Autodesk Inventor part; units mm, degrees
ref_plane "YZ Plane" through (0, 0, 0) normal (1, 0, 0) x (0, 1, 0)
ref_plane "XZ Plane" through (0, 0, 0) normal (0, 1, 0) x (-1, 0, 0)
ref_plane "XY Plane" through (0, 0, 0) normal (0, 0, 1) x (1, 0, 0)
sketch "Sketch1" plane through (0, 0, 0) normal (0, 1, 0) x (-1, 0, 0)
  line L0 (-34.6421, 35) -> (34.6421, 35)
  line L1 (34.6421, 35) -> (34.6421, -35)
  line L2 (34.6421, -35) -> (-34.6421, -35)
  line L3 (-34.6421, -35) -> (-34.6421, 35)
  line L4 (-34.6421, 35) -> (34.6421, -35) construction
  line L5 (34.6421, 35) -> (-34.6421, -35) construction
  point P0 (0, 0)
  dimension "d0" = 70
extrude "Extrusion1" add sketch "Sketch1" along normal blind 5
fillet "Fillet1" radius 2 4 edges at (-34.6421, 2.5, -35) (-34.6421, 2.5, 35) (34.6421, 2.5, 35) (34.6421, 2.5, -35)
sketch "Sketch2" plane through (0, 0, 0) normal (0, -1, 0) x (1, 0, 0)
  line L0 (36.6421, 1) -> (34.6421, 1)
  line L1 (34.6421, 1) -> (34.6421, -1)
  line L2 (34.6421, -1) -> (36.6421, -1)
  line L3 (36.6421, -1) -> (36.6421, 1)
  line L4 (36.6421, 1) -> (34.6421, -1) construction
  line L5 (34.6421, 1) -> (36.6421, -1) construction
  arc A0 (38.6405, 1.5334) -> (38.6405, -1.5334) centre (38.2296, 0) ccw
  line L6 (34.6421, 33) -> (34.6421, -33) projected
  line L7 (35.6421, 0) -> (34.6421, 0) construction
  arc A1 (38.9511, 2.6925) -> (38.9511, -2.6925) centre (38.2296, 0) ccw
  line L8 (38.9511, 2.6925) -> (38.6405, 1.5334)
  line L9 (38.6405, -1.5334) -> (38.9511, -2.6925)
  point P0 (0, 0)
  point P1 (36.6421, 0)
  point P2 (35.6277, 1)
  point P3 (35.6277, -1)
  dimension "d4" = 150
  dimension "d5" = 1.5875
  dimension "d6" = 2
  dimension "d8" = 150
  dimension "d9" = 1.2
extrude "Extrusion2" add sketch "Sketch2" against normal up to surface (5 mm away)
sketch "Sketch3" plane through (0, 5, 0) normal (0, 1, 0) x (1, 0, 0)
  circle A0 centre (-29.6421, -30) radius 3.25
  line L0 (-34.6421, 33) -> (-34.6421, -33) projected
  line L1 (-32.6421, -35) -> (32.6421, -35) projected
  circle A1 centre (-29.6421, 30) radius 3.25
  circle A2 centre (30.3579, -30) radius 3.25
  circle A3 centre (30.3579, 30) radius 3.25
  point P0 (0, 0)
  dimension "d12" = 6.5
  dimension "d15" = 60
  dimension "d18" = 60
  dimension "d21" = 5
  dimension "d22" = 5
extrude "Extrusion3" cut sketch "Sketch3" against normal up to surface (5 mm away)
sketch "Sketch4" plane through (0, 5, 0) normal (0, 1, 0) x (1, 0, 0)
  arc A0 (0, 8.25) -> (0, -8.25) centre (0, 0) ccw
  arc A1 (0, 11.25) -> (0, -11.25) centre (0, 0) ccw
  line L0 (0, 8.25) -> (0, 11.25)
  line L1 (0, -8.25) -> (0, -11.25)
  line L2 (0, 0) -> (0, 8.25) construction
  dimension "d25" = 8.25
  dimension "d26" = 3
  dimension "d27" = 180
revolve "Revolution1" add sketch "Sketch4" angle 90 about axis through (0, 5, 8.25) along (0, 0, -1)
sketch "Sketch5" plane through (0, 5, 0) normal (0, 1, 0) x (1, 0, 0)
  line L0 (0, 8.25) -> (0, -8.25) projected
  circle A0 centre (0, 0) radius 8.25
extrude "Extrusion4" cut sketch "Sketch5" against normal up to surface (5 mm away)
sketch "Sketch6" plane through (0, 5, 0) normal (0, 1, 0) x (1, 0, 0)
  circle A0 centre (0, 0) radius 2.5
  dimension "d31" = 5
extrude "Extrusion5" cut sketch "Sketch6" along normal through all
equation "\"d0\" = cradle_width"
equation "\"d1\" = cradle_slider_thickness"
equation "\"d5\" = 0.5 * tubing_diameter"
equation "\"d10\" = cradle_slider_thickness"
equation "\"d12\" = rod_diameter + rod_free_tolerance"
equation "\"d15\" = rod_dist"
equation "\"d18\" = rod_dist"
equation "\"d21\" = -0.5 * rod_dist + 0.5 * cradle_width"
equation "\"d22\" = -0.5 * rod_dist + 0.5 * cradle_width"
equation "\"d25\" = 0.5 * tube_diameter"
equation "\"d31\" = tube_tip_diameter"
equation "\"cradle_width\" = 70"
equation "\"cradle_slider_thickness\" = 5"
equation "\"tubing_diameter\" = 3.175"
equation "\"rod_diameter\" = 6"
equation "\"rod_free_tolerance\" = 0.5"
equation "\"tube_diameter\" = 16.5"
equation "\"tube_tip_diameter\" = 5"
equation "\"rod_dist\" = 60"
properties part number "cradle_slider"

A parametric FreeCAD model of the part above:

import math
import FreeCAD as App
import Part
import Sketcher
from FreeCAD import Vector
Q = App.Units.Quantity


def edges_at(feature, points):
    """Names of the edges that pass closest to the given points."""
    edges = feature.Shape.Edges
    near = lambda p: min(range(len(edges)), key=lambda i: edges[i].distToShape(Part.Vertex(*p))[0])
    return sorted({f"Edge{near(p) + 1}" for p in points})

doc = App.newDocument("Part")
body = doc.addObject("PartDesign::Body", "Body")

# Sketch on XZ plane
sketch1 = doc.addObject("Sketcher::SketchObject", "Sketch")
body.addObject(sketch1)
sketch1.AttachmentSupport = (doc.XZ_Plane, [""])
sketch1.MapMode = "FlatFace"
sketch1.addGeometry([
    Part.LineSegment(Vector(-35, 35, 0), Vector(35, 35, 0)),
    Part.LineSegment(Vector(35, 35, 0), Vector(35, -35, 0)),
    Part.LineSegment(Vector(35, -35, 0), Vector(-35, -35, 0)),
    Part.LineSegment(Vector(-35, -35, 0), Vector(-35, 35, 0)),
], False)
sketch1.addConstraint([
    Sketcher.Constraint("Coincident", 0, 2, 1, 1),
    Sketcher.Constraint("Coincident", 1, 2, 2, 1),
    Sketcher.Constraint("Coincident", 2, 2, 3, 1),
    Sketcher.Constraint("Coincident", 3, 2, 0, 1),
    Sketcher.Constraint("Horizontal", 0),
    Sketcher.Constraint("Vertical", 1),
    Sketcher.Constraint("Horizontal", 2),
    Sketcher.Constraint("Vertical", 3),
    Sketcher.Constraint("Symmetric", 0, 2, 2, 2, -1, 1),
    Sketcher.Constraint("DistanceY", 1, 2, 1, 1, Q("70 mm")),
    Sketcher.Constraint("DistanceX", 0, 1, 0, 2, Q("69.2842 mm")),
])
pad1 = doc.addObject("PartDesign::Pad", "Pad")
body.addObject(pad1)
pad1.Profile = sketch1
pad1.Length = 5
pad1.Reversed = True
doc.recompute()

fillet = doc.addObject("PartDesign::Fillet", "Fillet")
body.addObject(fillet)
fillet.Base = (pad1, edges_at(pad1, [
    (-34.642, 2.5, -35),
    (-34.642, 2.5, 35),
    (34.642, 2.5, 35),
    (34.642, 2.5, -35),
]))
fillet.Radius = 2

# Sketch on XZ plane
sketch2 = doc.addObject("Sketcher::SketchObject", "Sketch001")
body.addObject(sketch2)
sketch2.AttachmentSupport = (doc.XZ_Plane, [""])
sketch2.MapMode = "FlatFace"
sketch2.addGeometry([
    Part.LineSegment(Vector(38.6, 1.5, 0), Vector(39, 2.7, 0)),  # 0
    Part.ArcOfCircle(Part.Circle(Vector(38.2, 0, 0), Vector(0, 0, 1), 2.8), math.radians(75), math.radians(159)),  # 1
    Part.LineSegment(Vector(35.6, 1, 0), Vector(34.6, 1, 0)),  # 2
    Part.LineSegment(Vector(34.6, 1, 0), Vector(34.6, -1, 0)),  # 3
    Part.LineSegment(Vector(34.6, -1, 0), Vector(35.6, -1, 0)),  # 4
    Part.ArcOfCircle(Part.Circle(Vector(38.2, 0, 0), Vector(0, 0, 1), 2.8), math.radians(-159), math.radians(-75)),  # 5
    Part.LineSegment(Vector(39, -2.7, 0), Vector(38.6, -1.5, 0)),  # 6
    Part.ArcOfCircle(Part.Circle(Vector(38.2, 0, 0), Vector(0, 0, 1), 1.6), math.radians(75), math.radians(285)),  # 7
], False)
sketch2.addConstraint([
    Sketcher.Constraint("Coincident", 0, 2, 1, 1),
    Sketcher.Constraint("Coincident", 1, 2, 2, 1),
    Sketcher.Constraint("Coincident", 2, 2, 3, 1),
    Sketcher.Constraint("Coincident", 3, 2, 4, 1),
    Sketcher.Constraint("Coincident", 4, 2, 5, 1),
    Sketcher.Constraint("Coincident", 5, 2, 6, 1),
    Sketcher.Constraint("Coincident", 6, 2, 7, 2),
    Sketcher.Constraint("Coincident", 7, 1, 0, 1),
    Sketcher.Constraint("Horizontal", 2),
    Sketcher.Constraint("Vertical", 3),
    Sketcher.Constraint("Horizontal", 4),
    Sketcher.Constraint("Coincident", 5, 3, 1, 3),
    Sketcher.Constraint("Coincident", 7, 3, 1, 3),
    Sketcher.Constraint("Equal", 1, 5),
    Sketcher.Constraint("Symmetric", 1, 2, 4, 2, -1),
    Sketcher.Constraint("Vertical", 0, 2, 5, 2),
    Sketcher.Constraint("Vertical", 6, 2, 7, 1),
    Sketcher.Constraint("DistanceY", 3, 2, 3, 1, Q("2 mm")),
    Sketcher.Constraint("Distance", 0, Q("1.2 mm")),
    Sketcher.Constraint("Radius", 7, Q("1.5875 mm")),
    Sketcher.Constraint("Angle", 0, Q("74.999 deg")),
    Sketcher.Constraint("DistanceX", 2, 2, 2, 1, Q("0.9856 mm")),
    Sketcher.Constraint("DistanceX", -1, 1, 0, 2, Q("38.951 mm")),
    Sketcher.Constraint("DistanceX", -1, 1, 2, 2, Q("34.642 mm")),
])
pad2 = doc.addObject("PartDesign::Pad", "Pad001")
body.addObject(pad2)
pad2.Profile = sketch2
pad2.Length = 5
pad2.Reversed = True

# Sketch on XZ plane
sketch3 = doc.addObject("Sketcher::SketchObject", "Sketch002")
body.addObject(sketch3)
sketch3.AttachmentSupport = (doc.XZ_Plane, [""])
sketch3.MapMode = "FlatFace"
sketch3.AttachmentOffset = App.Placement(Vector(0, 0, -5), App.Rotation())
sketch3.addGeometry([
    Part.Circle(Vector(-29.6, 30, 0), Vector(0, 0, 1), 3.2),
    Part.Circle(Vector(-29.6, -30, 0), Vector(0, 0, 1), 3.2),
    Part.Circle(Vector(30.4, 30, 0), Vector(0, 0, 1), 3.2),
    Part.Circle(Vector(30.4, -30, 0), Vector(0, 0, 1), 3.2),
], False)
sketch3.addConstraint([
    Sketcher.Constraint("Equal", 0, 1),
    Sketcher.Constraint("Equal", 1, 2),
    Sketcher.Constraint("Equal", 2, 3),
    Sketcher.Constraint("Symmetric", 0, 3, 1, 3, -1),
    Sketcher.Constraint("Symmetric", 2, 3, 3, 3, -1),
    Sketcher.Constraint("Horizontal", 0, 3, 2, 3),
    Sketcher.Constraint("Diameter", 0, Q("6.5 mm")),
    Sketcher.Constraint("DistanceY", 1, 3, 0, 3, Q("60 mm")),
    Sketcher.Constraint("DistanceX", 0, 3, 2, 3, Q("60 mm")),
    Sketcher.Constraint("DistanceX", 0, 3, -1, 1, Q("29.642 mm")),
])
pocket1 = doc.addObject("PartDesign::Pocket", "Pocket")
body.addObject(pocket1)
pocket1.Profile = sketch3
pocket1.Length = 5
pocket1.Reversed = True

# Sketch on XZ plane
sketch4 = doc.addObject("Sketcher::SketchObject", "Sketch003")
body.addObject(sketch4)
sketch4.AttachmentSupport = (doc.XZ_Plane, [""])
sketch4.MapMode = "FlatFace"
sketch4.AttachmentOffset = App.Placement(Vector(0, 0, -5), App.Rotation())
sketch4.addGeometry([
    Part.ArcOfCircle(Part.Circle(Vector(0, 0, 0), Vector(0, 0, 1), 8.2), math.radians(90), math.radians(270)),
    Part.LineSegment(Vector(0, -8.2, 0), Vector(0, -11.2, 0)),
    Part.ArcOfCircle(Part.Circle(Vector(0, 0, 0), Vector(0, 0, 1), 11.2), math.radians(90), math.radians(270)),
    Part.LineSegment(Vector(0, 11.2, 0), Vector(0, 8.2, 0)),
], False)
sketch4.addConstraint([
    Sketcher.Constraint("Coincident", 0, 2, 1, 1),
    Sketcher.Constraint("Coincident", 1, 2, 2, 2),
    Sketcher.Constraint("Coincident", 2, 1, 3, 1),
    Sketcher.Constraint("Coincident", 3, 2, 0, 1),
    Sketcher.Constraint("Vertical", 1),
    Sketcher.Constraint("Vertical", 3),
    Sketcher.Constraint("Coincident", 0, 3, -1, 1),
    Sketcher.Constraint("Coincident", 2, 3, -1, 1),
    Sketcher.Constraint("PointOnObject", 0, 2, -2),
    Sketcher.Constraint("PointOnObject", 2, 1, -2),
    Sketcher.Constraint("DistanceY", 1, 2, 1, 1, Q("3 mm")),
    Sketcher.Constraint("Radius", 0, Q("8.25 mm")),
])
revolution = doc.addObject("PartDesign::Revolution", "Revolution")
body.addObject(revolution)
revolution.Profile = sketch4
revolution.ReferenceAxis = (sketch4, ["V_Axis"])
revolution.Angle = 90
revolution.Reversed = True

# Sketch on XZ plane
sketch5 = doc.addObject("Sketcher::SketchObject", "Sketch004")
body.addObject(sketch5)
sketch5.AttachmentSupport = (doc.XZ_Plane, [""])
sketch5.MapMode = "FlatFace"
sketch5.AttachmentOffset = App.Placement(Vector(0, 0, -5), App.Rotation())
sketch5.addGeometry(Part.Circle(Vector(0, 0, 0), Vector(0, 0, 1), 8), False)
sketch5.addConstraint([
    Sketcher.Constraint("Coincident", 0, 3, -1, 1),
    Sketcher.Constraint("Diameter", 0, Q("16.5 mm")),
])
pocket2 = doc.addObject("PartDesign::Pocket", "Pocket001")
body.addObject(pocket2)
pocket2.Profile = sketch5
pocket2.Length = 5
pocket2.Reversed = True

# Sketch on XZ plane
sketch6 = doc.addObject("Sketcher::SketchObject", "Sketch005")
body.addObject(sketch6)
sketch6.AttachmentSupport = (doc.XZ_Plane, [""])
sketch6.MapMode = "FlatFace"
sketch6.AttachmentOffset = App.Placement(Vector(0, 0, -5), App.Rotation())
sketch6.addGeometry(Part.Circle(Vector(0, 0, 0), Vector(0, 0, 1), 2.5), False)
sketch6.addConstraint([
    Sketcher.Constraint("Coincident", 0, 3, -1, 1),
    Sketcher.Constraint("Diameter", 0, Q("5 mm")),
])
pocket3 = doc.addObject("PartDesign::Pocket", "Pocket002")
body.addObject(pocket3)
pocket3.Profile = sketch6
pocket3.Type = "ThroughAll"

doc.recompute()
